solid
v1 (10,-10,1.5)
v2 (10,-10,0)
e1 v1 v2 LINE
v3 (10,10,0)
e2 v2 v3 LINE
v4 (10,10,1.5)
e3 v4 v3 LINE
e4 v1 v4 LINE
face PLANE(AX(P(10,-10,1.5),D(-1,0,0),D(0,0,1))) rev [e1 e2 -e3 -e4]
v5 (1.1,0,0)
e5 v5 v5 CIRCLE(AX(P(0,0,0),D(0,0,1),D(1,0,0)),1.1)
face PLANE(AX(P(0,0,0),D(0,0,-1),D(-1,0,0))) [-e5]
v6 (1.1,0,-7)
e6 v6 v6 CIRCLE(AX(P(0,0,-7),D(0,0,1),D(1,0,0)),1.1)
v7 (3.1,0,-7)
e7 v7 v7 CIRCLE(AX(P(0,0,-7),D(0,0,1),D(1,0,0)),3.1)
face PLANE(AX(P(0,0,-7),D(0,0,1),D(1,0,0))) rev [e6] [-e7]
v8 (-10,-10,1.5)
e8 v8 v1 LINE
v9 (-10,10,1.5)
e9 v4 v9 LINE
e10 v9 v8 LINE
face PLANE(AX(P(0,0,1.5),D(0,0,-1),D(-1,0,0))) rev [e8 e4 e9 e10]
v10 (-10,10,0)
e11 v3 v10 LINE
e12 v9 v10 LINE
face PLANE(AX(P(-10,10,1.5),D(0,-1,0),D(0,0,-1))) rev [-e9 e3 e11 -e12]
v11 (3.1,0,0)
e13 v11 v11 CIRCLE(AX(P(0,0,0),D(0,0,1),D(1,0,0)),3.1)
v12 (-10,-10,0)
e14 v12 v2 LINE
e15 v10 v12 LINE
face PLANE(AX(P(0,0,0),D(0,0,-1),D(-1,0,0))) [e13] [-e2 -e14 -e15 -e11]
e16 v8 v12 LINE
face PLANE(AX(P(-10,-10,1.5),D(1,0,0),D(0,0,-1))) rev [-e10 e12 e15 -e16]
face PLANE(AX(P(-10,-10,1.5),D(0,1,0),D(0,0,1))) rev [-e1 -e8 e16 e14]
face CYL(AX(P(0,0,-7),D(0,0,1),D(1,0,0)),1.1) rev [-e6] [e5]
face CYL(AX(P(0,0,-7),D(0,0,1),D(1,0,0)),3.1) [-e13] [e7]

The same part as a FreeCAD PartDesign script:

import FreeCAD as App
import Part
import Sketcher
from FreeCAD import Vector

doc = App.newDocument("Part")
body = doc.addObject("PartDesign::Body", "Body")

# Sketch on XY plane
sketch1 = doc.addObject("Sketcher::SketchObject", "Sketch")
body.addObject(sketch1)
sketch1.AttachmentSupport = (doc.XY_Plane, [""])
sketch1.MapMode = "FlatFace"
sketch1.addGeometry(Part.LineSegment(Vector(-10, 10, 0), Vector(-10, -10, 0)), False)
sketch1.addGeometry(Part.LineSegment(Vector(-10, -10, 0), Vector(10, -10, 0)), False)
sketch1.addGeometry(Part.LineSegment(Vector(10, -10, 0), Vector(10, 10, 0)), False)
sketch1.addGeometry(Part.LineSegment(Vector(10, 10, 0), Vector(-10, 10, 0)), False)
sketch1.addConstraint(Sketcher.Constraint("Coincident", 0, 2, 1, 1))
sketch1.addConstraint(Sketcher.Constraint("Coincident", 1, 2, 2, 1))
sketch1.addConstraint(Sketcher.Constraint("Coincident", 2, 2, 3, 1))
sketch1.addConstraint(Sketcher.Constraint("Coincident", 3, 2, 0, 1))
sketch1.addConstraint(Sketcher.Constraint("Vertical", 0))
sketch1.addConstraint(Sketcher.Constraint("Horizontal", 1))
sketch1.addConstraint(Sketcher.Constraint("Vertical", 2))
sketch1.addConstraint(Sketcher.Constraint("Horizontal", 3))
sketch1.addConstraint(Sketcher.Constraint("Symmetric", 0, 2, 2, 2, -1, 1))
sketch1.addConstraint(Sketcher.Constraint("Equal", 3, 0))
sketch1.addConstraint(Sketcher.Constraint("DistanceX", 1, 1, 1, 2, 20.0))
pad1 = doc.addObject("PartDesign::Pad", "Pad")
body.addObject(pad1)
pad1.Profile = sketch1
pad1.Length = 1.5

# Sketch on XY plane
sketch2 = doc.addObject("Sketcher::SketchObject", "Sketch001")
body.addObject(sketch2)
sketch2.AttachmentSupport = (doc.XY_Plane, [""])
sketch2.MapMode = "FlatFace"
sketch2.addGeometry(Part.Circle(Vector(0, 0, 0), Vector(0, 0, 1), 3.1), False)
sketch2.addGeometry(Part.Circle(Vector(0, 0, 0), Vector(0, 0, 1), 1.1), False)
sketch2.addConstraint(Sketcher.Constraint("Coincident", 0, 3, -1, 1))
sketch2.addConstraint(Sketcher.Constraint("Coincident", 1, 3, -1, 1))
sketch2.addConstraint(Sketcher.Constraint("Diameter", 0, 6.2))
sketch2.addConstraint(Sketcher.Constraint("Diameter", 1, 2.2))
pad2 = doc.addObject("PartDesign::Pad", "Pad001")
body.addObject(pad2)
pad2.Profile = sketch2
pad2.Length = 7
pad2.Reversed = True

doc.recompute()
